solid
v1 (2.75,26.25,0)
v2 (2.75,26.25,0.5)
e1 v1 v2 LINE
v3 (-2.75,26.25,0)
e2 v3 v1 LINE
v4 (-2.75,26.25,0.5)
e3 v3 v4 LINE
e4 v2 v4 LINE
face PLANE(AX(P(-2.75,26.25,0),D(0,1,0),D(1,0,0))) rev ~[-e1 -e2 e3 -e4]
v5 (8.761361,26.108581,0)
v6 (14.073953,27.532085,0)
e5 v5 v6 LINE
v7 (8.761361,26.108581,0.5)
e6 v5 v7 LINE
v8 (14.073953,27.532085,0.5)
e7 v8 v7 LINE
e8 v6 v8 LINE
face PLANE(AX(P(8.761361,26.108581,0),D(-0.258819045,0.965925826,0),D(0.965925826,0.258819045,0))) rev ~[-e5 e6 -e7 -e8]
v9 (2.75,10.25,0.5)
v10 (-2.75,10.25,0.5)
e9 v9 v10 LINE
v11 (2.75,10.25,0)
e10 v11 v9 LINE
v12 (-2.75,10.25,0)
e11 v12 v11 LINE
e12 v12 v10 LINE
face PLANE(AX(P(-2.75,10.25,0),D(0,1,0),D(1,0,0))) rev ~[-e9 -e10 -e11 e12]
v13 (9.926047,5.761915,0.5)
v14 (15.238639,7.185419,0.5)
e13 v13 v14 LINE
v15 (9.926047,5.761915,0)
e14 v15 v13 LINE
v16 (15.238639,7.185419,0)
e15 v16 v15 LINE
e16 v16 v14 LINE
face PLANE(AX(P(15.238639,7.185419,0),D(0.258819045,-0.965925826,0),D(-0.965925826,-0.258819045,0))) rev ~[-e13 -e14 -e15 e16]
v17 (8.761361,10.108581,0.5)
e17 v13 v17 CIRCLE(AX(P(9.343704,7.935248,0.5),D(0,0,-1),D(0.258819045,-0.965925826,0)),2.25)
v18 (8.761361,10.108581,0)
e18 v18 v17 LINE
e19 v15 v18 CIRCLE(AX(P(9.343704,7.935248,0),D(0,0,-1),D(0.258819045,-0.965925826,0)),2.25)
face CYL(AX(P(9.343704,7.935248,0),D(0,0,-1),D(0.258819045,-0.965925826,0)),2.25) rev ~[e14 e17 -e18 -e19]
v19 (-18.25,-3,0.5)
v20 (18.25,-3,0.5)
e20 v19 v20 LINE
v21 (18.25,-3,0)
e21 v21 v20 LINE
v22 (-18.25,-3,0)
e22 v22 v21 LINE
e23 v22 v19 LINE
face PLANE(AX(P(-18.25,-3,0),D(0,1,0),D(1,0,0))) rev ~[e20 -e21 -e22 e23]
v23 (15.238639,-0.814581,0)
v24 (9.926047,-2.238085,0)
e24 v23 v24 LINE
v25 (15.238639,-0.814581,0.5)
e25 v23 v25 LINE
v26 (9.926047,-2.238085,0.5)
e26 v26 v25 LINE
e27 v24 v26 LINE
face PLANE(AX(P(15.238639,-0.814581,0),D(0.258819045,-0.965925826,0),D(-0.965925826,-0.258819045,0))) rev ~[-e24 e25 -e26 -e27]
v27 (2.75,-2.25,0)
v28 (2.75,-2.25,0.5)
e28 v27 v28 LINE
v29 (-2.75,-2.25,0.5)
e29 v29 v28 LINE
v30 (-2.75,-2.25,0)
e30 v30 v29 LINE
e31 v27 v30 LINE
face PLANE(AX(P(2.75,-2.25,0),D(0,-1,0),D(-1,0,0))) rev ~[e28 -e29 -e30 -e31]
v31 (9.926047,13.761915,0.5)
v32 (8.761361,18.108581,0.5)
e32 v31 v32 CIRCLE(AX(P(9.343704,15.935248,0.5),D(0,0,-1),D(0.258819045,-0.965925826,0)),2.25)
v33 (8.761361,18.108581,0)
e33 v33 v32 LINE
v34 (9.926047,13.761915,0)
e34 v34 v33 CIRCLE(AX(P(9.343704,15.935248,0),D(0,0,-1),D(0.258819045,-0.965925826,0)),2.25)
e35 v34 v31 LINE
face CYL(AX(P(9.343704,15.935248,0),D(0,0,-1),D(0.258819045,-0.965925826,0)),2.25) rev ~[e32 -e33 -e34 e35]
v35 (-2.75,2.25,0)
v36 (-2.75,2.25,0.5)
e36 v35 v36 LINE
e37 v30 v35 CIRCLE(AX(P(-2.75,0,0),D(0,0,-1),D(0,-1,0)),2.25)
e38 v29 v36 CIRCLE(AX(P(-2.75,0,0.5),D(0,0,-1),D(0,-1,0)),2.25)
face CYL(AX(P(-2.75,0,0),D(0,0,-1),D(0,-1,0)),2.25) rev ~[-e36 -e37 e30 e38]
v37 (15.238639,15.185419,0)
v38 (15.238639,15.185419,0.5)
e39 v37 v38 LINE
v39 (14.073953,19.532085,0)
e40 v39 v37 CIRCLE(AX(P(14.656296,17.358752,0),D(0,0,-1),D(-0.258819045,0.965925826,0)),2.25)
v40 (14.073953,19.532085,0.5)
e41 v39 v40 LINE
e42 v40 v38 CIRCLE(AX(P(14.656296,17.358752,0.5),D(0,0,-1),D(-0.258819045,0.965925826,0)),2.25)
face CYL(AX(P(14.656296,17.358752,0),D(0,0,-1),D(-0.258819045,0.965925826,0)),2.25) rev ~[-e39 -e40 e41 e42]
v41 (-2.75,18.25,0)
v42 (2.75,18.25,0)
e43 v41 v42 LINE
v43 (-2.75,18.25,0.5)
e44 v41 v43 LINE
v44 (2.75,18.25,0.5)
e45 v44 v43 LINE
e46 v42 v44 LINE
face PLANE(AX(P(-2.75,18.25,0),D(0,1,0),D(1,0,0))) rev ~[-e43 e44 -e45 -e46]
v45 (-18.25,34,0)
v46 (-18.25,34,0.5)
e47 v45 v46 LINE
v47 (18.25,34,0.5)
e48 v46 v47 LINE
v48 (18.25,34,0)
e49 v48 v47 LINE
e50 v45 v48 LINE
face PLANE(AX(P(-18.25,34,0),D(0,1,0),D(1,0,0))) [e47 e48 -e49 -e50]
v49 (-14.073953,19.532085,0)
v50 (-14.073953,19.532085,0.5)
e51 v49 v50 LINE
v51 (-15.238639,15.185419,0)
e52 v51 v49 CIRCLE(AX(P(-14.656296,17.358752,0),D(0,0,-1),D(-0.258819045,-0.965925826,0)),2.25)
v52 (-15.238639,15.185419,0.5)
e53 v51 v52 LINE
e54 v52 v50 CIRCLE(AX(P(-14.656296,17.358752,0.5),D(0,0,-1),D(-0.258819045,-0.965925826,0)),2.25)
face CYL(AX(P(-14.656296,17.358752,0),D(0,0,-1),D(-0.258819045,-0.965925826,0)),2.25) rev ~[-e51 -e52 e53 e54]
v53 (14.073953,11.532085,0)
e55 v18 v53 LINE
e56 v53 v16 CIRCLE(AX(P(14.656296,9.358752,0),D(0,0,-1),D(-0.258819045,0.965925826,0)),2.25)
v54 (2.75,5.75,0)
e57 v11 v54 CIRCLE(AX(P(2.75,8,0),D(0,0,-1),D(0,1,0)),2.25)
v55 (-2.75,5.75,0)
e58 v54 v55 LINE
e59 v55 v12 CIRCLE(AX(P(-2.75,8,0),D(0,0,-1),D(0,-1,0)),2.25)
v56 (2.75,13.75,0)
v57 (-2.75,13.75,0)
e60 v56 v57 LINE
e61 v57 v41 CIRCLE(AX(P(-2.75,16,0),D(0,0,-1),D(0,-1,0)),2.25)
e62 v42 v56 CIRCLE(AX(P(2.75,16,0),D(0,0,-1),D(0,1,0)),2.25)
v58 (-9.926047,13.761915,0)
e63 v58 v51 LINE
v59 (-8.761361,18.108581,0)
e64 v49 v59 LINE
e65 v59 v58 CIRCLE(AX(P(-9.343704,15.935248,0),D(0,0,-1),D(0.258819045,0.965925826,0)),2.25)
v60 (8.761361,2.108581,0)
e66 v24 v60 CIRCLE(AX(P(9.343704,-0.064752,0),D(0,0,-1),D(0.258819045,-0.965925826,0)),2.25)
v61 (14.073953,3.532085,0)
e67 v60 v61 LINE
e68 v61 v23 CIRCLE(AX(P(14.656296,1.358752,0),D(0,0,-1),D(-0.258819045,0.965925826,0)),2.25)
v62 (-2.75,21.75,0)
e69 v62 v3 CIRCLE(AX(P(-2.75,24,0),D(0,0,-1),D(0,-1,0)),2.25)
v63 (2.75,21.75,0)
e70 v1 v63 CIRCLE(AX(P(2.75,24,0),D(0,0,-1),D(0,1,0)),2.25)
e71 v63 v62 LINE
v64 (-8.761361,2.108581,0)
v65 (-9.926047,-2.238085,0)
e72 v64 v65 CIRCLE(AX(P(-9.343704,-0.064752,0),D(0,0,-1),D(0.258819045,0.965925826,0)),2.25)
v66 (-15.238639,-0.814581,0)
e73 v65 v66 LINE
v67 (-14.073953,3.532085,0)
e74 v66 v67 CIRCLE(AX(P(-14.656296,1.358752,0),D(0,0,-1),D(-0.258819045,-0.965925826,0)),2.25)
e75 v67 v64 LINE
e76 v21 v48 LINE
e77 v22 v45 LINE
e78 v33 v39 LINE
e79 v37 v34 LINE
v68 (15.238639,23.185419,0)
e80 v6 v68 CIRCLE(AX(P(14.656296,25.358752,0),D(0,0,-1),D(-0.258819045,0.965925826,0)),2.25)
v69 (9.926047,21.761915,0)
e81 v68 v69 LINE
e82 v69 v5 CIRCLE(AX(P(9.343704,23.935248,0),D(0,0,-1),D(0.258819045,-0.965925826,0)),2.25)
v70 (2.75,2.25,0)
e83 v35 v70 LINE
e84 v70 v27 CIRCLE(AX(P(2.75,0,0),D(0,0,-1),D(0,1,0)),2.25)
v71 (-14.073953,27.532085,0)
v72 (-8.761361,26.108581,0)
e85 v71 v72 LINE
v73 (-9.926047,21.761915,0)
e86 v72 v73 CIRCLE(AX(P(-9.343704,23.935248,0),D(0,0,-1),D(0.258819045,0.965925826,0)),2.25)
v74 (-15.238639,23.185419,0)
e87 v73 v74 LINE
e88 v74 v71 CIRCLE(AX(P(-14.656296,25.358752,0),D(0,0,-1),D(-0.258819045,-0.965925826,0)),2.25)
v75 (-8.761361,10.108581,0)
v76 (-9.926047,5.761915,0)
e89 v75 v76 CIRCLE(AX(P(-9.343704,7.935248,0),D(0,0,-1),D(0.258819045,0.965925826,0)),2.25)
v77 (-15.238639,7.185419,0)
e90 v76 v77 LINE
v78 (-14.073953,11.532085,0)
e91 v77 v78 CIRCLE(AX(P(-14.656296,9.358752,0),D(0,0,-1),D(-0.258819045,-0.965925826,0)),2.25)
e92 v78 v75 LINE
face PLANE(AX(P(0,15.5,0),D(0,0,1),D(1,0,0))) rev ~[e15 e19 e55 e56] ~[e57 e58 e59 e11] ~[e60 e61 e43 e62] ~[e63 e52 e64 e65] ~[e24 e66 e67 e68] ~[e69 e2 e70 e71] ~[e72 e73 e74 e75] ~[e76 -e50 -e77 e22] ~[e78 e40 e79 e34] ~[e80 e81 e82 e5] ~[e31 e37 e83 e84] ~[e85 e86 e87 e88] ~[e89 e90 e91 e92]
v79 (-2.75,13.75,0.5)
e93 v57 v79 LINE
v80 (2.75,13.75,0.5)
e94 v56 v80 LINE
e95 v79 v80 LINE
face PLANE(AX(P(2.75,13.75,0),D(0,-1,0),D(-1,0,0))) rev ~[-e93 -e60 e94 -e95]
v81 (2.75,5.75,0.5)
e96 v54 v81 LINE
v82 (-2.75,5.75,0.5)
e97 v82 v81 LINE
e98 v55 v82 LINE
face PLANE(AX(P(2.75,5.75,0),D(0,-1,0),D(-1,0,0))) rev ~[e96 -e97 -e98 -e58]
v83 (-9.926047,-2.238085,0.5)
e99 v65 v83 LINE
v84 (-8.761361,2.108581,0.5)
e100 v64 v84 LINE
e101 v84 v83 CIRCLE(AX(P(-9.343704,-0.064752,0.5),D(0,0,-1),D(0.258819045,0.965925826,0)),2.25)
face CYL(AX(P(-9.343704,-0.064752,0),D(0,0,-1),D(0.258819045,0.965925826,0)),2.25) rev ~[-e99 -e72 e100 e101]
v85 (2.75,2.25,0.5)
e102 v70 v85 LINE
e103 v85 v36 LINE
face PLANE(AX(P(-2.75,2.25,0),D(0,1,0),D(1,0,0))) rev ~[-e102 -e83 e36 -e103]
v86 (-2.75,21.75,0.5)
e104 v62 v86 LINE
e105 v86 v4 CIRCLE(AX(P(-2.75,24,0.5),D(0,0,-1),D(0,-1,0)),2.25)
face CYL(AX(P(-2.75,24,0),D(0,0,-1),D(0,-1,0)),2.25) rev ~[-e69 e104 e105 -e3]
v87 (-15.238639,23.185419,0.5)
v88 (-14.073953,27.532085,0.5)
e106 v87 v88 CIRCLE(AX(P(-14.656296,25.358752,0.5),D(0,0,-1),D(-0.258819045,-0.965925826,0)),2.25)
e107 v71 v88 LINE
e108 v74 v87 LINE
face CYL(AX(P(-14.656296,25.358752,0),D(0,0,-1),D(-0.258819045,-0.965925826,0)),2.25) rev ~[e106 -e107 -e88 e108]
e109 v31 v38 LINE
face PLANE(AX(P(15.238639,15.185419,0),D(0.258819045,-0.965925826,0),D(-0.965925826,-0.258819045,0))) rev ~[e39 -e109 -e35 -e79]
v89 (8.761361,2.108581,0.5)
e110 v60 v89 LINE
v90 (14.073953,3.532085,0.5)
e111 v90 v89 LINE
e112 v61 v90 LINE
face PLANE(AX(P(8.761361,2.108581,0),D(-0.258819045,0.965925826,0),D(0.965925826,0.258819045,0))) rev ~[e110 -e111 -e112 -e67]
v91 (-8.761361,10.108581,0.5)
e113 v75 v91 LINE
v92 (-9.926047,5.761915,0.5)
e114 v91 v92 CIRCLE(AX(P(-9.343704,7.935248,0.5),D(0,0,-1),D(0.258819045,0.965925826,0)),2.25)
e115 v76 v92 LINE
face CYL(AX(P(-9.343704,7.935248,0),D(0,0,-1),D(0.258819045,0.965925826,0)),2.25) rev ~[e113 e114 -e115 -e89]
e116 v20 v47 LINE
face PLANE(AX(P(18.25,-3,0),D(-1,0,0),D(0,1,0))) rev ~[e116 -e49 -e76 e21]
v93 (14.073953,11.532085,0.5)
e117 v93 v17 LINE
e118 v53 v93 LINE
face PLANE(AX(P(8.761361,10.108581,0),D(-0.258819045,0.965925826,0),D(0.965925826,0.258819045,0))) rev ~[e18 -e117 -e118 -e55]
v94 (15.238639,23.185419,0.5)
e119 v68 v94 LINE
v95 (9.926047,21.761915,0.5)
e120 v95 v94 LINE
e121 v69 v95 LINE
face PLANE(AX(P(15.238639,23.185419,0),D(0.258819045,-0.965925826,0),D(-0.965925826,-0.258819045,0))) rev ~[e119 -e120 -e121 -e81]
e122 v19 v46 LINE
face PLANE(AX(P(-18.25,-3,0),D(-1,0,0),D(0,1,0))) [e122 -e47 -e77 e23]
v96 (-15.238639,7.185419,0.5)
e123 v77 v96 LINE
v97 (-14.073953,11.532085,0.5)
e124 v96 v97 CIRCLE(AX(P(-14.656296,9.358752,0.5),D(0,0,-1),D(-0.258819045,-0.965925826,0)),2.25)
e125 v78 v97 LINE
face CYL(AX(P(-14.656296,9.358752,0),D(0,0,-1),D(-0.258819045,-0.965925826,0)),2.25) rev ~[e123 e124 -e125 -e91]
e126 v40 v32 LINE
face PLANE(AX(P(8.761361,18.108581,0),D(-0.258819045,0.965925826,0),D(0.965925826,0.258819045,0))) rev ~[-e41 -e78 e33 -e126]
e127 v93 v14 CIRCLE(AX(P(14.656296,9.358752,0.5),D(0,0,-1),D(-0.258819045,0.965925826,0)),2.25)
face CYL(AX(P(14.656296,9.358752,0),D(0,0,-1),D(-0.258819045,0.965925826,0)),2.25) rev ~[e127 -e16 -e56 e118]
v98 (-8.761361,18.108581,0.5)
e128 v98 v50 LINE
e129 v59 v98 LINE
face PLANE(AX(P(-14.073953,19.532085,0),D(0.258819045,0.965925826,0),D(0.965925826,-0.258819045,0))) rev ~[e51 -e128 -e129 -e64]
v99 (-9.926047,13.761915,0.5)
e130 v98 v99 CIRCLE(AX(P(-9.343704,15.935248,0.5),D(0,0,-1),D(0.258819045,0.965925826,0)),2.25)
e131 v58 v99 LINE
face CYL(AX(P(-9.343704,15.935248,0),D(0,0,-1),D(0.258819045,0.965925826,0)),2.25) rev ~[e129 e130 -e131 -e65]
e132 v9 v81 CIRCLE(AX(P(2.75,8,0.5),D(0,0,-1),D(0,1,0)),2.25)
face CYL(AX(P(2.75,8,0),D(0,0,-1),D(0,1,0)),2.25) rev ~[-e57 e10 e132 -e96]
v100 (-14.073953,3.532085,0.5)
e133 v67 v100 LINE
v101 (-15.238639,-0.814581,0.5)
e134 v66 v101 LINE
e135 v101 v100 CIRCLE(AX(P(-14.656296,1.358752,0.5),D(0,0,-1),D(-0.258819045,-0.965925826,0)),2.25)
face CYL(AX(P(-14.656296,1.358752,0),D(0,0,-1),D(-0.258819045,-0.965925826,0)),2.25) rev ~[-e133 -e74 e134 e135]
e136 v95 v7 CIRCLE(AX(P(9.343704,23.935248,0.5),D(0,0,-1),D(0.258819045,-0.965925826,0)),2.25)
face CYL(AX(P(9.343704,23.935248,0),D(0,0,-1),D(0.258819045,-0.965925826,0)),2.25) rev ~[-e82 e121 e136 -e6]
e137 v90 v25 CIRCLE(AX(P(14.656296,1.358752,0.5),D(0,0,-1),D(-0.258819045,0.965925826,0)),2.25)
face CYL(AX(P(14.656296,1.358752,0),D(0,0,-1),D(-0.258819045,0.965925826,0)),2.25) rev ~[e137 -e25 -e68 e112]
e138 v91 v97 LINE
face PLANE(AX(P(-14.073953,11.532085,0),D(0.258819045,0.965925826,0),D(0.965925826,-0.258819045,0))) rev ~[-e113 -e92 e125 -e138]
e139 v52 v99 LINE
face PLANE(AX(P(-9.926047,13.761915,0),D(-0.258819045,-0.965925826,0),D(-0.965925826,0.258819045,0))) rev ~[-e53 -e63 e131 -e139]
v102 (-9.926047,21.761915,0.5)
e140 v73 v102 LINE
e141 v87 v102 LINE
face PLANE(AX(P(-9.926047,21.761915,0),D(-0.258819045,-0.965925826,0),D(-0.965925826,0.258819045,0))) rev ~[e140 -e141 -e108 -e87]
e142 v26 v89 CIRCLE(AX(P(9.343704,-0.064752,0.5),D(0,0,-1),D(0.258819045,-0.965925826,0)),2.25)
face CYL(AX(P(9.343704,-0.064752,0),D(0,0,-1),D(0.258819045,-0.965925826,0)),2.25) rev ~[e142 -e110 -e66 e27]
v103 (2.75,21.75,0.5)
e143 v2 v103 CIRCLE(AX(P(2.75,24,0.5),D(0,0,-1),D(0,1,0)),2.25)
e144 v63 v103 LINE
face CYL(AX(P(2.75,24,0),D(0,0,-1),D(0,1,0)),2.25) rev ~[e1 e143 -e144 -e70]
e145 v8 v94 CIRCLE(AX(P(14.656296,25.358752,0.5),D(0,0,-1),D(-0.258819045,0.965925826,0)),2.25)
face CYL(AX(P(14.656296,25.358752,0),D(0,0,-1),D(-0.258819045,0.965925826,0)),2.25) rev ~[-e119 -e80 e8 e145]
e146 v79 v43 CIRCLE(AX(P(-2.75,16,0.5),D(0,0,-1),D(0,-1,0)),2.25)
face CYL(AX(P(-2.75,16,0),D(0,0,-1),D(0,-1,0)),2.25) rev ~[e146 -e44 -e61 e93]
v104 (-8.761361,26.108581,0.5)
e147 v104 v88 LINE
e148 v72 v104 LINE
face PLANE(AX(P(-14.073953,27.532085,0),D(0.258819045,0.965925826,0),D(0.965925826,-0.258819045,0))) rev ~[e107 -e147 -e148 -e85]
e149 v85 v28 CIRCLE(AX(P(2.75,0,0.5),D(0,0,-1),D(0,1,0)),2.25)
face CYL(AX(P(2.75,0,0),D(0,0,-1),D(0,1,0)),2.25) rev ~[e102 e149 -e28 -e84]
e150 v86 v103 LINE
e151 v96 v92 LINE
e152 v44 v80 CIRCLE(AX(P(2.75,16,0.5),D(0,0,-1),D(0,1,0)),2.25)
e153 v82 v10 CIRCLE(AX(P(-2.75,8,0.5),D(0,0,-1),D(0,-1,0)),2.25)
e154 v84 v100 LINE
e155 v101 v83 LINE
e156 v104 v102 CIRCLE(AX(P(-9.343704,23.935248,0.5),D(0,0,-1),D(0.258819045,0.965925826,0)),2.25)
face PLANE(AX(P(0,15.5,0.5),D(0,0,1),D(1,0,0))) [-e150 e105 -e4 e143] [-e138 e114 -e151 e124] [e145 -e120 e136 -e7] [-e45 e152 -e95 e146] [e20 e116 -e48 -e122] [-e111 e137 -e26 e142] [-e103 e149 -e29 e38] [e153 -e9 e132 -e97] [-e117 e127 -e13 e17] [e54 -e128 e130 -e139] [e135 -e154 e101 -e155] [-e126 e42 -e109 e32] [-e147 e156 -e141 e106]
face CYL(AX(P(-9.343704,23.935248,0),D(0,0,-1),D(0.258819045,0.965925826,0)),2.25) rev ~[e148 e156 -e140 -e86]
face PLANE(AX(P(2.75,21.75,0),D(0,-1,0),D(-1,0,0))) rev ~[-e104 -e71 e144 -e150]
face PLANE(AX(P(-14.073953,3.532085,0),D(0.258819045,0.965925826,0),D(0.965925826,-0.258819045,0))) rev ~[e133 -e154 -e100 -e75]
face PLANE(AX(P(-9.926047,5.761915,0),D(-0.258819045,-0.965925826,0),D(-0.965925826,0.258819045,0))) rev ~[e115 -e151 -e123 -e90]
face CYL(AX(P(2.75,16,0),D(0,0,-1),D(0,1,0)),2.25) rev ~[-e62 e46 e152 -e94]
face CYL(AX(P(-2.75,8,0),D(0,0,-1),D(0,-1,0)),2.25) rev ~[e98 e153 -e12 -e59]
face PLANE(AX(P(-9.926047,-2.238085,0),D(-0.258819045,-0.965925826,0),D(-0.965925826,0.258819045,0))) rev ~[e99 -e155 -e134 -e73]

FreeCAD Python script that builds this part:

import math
import FreeCAD as App
import Part
import Sketcher
from FreeCAD import Vector
Q = App.Units.Quantity


def add_polygon(sketch, points):
    """Adds a closed chain of lines whose ends are joined by coincident constraints."""
    first, n = sketch.GeometryCount, len(points)
    for a, b in zip(points, points[1:] + points[:1]):
        sketch.addGeometry(Part.LineSegment(App.Vector(*a, 0), App.Vector(*b, 0)), False)
    for i in range(n):
        sketch.addConstraint(Sketcher.Constraint("Coincident", first + i, 2, first + (i + 1) % n, 1))

doc = App.newDocument("Part")
params = doc.addObject("Spreadsheet::Sheet", "Params")
for row, (alias, value) in enumerate([
    ("sketch1_height", "37 mm"),
    ("sketch1_width", "36.5 mm"),
    ("pad1_length", "0.5 mm"),
    ("sketch2_radius", "2.25 mm"),
    ("sketch2_width", "5.5 mm"),
    ("sketch2_length", "5.5 mm"),
    ("linearpattern_pitch", "8 mm"),
], start=1):
    params.set(f"A{row}", alias)
    params.set(f"B{row}", "=" + value)
    params.setAlias(f"B{row}", alias)

body = doc.addObject("PartDesign::Body", "Body")

# Sketch on XY plane
sketch1 = doc.addObject("Sketcher::SketchObject", "Sketch")
body.addObject(sketch1)
sketch1.AttachmentSupport = (doc.XY_Plane, [""])
sketch1.MapMode = "FlatFace"
add_polygon(sketch1, [(-18, 34), (-18, -3), (18, -3), (18, 34)])  # lines 0-3
sketch1.addConstraint(Sketcher.Constraint("Vertical", 0))
sketch1.addConstraint(Sketcher.Constraint("Horizontal", 1))
sketch1.addConstraint(Sketcher.Constraint("Vertical", 2))
sketch1.addConstraint(Sketcher.Constraint("Horizontal", 3))
sketch1.addConstraint(Sketcher.Constraint("DistanceY", 0, 2, 0, 1, 37.0))
sketch1.addConstraint(Sketcher.Constraint("DistanceX", 1, 1, 1, 2, 36.5))
sketch1.addConstraint(Sketcher.Constraint("DistanceY", 0, 2, -1, 1, 3.0))
sketch1.addConstraint(Sketcher.Constraint("DistanceX", 0, 2, -1, 1, 18.25))
sketch1.setExpression("Constraints[8]", "Params.sketch1_height")
sketch1.setExpression("Constraints[9]", "Params.sketch1_width")
pad1 = doc.addObject("PartDesign::Pad", "Pad")
body.addObject(pad1)
pad1.Profile = sketch1
pad1.setExpression("Length", "Params.pad1_length")

# Sketch on XY plane
sketch2 = doc.addObject("Sketcher::SketchObject", "Sketch001")
body.addObject(sketch2)
sketch2.AttachmentSupport = (doc.XY_Plane, [""])
sketch2.MapMode = "FlatFace"
sketch2.addGeometry(Part.LineSegment(Vector(15.2, 23.2, 0), Vector(9.9, 21.8, 0)), False)
sketch2.addGeometry(Part.ArcOfCircle(Part.Circle(Vector(9.3, 23.9, 0), Vector(0, 0, 1), 2.2), math.radians(105), math.radians(285)), False)
sketch2.addGeometry(Part.LineSegment(Vector(8.8, 26.1, 0), Vector(14.1, 27.5, 0)), False)
sketch2.addGeometry(Part.ArcOfCircle(Part.Circle(Vector(14.7, 25.4, 0), Vector(0, 0, 1), 2.2), math.radians(-75), math.radians(105)), False)
sketch2.addGeometry(Part.LineSegment(Vector(2.8, 21.8, 0), Vector(-2.8, 21.8, 0)), False)
sketch2.addGeometry(Part.ArcOfCircle(Part.Circle(Vector(-2.8, 24, 0), Vector(0, 0, 1), 2.2), math.radians(90), math.radians(270)), False)
sketch2.addGeometry(Part.LineSegment(Vector(-2.8, 26.2, 0), Vector(2.8, 26.2, 0)), False)
sketch2.addGeometry(Part.ArcOfCircle(Part.Circle(Vector(2.8, 24, 0), Vector(0, 0, 1), 2.2), math.radians(-90), math.radians(90)), False)
sketch2.addGeometry(Part.LineSegment(Vector(-9.9, 21.8, 0), Vector(-15.2, 23.2, 0)), False)
sketch2.addGeometry(Part.ArcOfCircle(Part.Circle(Vector(-14.7, 25.4, 0), Vector(0, 0, 1), 2.2), math.radians(75), math.radians(255)), False)
sketch2.addGeometry(Part.LineSegment(Vector(-14.1, 27.5, 0), Vector(-8.8, 26.1, 0)), False)
sketch2.addGeometry(Part.ArcOfCircle(Part.Circle(Vector(-9.3, 23.9, 0), Vector(0, 0, 1), 2.2), math.radians(-105), math.radians(75)), False)
sketch2.addConstraint(Sketcher.Constraint("Tangent", 0, 2, 1, 2))
sketch2.addConstraint(Sketcher.Constraint("Tangent", 1, 1, 2, 1))
sketch2.addConstraint(Sketcher.Constraint("Tangent", 2, 2, 3, 2))
sketch2.addConstraint(Sketcher.Constraint("Tangent", 3, 1, 0, 1))
sketch2.addConstraint(Sketcher.Constraint("Tangent", 4, 2, 5, 2))
sketch2.addConstraint(Sketcher.Constraint("Tangent", 5, 1, 6, 1))
sketch2.addConstraint(Sketcher.Constraint("Tangent", 6, 2, 7, 2))
sketch2.addConstraint(Sketcher.Constraint("Tangent", 7, 1, 4, 1))
sketch2.addConstraint(Sketcher.Constraint("Tangent", 8, 2, 9, 2))
sketch2.addConstraint(Sketcher.Constraint("Tangent", 9, 1, 10, 1))
sketch2.addConstraint(Sketcher.Constraint("Tangent", 10, 2, 11, 2))
sketch2.addConstraint(Sketcher.Constraint("Tangent", 11, 1, 8, 1))
sketch2.addConstraint(Sketcher.Constraint("Horizontal", 4))
sketch2.addConstraint(Sketcher.Constraint("Horizontal", 6))
sketch2.addConstraint(Sketcher.Constraint("Equal", 1, 3))
sketch2.addConstraint(Sketcher.Constraint("Equal", 3, 5))
sketch2.addConstraint(Sketcher.Constraint("Equal", 7, 9))
sketch2.addConstraint(Sketcher.Constraint("Equal", 9, 11))
sketch2.addConstraint(Sketcher.Constraint("Symmetric", 3, 3, 9, 3, -2))
sketch2.addConstraint(Sketcher.Constraint("Symmetric", 1, 3, 11, 3, -2))
sketch2.addConstraint(Sketcher.Constraint("Angle", 0, Q("-165 deg")))
sketch2.addConstraint(Sketcher.Constraint("Radius", 1, 2.25))
sketch2.addConstraint(Sketcher.Constraint("DistanceX", 4, 2, 4, 1, 5.5))
sketch2.addConstraint(Sketcher.Constraint("DistanceY", -1, 1, 5, 3, 24.0))
sketch2.addConstraint(Sketcher.Constraint("DistanceX", 9, 3, 1, 3, 24.0))
sketch2.addConstraint(Sketcher.Constraint("Distance", 0, 5.5))
sketch2.addConstraint(Sketcher.Constraint("DistanceX", 5, 3, -1, 1, 2.75))
sketch2.addConstraint(Sketcher.Constraint("DistanceY", -1, 1, 1, 1, 26.108581))
sketch2.setExpression("Constraints[21]", "Params.sketch2_radius")
sketch2.setExpression("Constraints[22]", "Params.sketch2_width")
sketch2.setExpression("Constraints[25]", "Params.sketch2_length")
pocket1 = doc.addObject("PartDesign::Pocket", "Pocket")
body.addObject(pocket1)
pocket1.Profile = sketch2
pocket1.Type = "ThroughAll"
pocket1.Reversed = True
doc.recompute()

linearpattern = doc.addObject("PartDesign::LinearPattern", "LinearPattern")
body.addObject(linearpattern)
linearpattern.Originals = [pocket1]
linearpattern.Direction = (doc.Y_Axis, [""])
linearpattern.Mode = "offset"
linearpattern.setExpression("Offset", "Params.linearpattern_pitch")
linearpattern.Occurrences = 4
linearpattern.Reversed = True
body.Tip = linearpattern

doc.recompute()
